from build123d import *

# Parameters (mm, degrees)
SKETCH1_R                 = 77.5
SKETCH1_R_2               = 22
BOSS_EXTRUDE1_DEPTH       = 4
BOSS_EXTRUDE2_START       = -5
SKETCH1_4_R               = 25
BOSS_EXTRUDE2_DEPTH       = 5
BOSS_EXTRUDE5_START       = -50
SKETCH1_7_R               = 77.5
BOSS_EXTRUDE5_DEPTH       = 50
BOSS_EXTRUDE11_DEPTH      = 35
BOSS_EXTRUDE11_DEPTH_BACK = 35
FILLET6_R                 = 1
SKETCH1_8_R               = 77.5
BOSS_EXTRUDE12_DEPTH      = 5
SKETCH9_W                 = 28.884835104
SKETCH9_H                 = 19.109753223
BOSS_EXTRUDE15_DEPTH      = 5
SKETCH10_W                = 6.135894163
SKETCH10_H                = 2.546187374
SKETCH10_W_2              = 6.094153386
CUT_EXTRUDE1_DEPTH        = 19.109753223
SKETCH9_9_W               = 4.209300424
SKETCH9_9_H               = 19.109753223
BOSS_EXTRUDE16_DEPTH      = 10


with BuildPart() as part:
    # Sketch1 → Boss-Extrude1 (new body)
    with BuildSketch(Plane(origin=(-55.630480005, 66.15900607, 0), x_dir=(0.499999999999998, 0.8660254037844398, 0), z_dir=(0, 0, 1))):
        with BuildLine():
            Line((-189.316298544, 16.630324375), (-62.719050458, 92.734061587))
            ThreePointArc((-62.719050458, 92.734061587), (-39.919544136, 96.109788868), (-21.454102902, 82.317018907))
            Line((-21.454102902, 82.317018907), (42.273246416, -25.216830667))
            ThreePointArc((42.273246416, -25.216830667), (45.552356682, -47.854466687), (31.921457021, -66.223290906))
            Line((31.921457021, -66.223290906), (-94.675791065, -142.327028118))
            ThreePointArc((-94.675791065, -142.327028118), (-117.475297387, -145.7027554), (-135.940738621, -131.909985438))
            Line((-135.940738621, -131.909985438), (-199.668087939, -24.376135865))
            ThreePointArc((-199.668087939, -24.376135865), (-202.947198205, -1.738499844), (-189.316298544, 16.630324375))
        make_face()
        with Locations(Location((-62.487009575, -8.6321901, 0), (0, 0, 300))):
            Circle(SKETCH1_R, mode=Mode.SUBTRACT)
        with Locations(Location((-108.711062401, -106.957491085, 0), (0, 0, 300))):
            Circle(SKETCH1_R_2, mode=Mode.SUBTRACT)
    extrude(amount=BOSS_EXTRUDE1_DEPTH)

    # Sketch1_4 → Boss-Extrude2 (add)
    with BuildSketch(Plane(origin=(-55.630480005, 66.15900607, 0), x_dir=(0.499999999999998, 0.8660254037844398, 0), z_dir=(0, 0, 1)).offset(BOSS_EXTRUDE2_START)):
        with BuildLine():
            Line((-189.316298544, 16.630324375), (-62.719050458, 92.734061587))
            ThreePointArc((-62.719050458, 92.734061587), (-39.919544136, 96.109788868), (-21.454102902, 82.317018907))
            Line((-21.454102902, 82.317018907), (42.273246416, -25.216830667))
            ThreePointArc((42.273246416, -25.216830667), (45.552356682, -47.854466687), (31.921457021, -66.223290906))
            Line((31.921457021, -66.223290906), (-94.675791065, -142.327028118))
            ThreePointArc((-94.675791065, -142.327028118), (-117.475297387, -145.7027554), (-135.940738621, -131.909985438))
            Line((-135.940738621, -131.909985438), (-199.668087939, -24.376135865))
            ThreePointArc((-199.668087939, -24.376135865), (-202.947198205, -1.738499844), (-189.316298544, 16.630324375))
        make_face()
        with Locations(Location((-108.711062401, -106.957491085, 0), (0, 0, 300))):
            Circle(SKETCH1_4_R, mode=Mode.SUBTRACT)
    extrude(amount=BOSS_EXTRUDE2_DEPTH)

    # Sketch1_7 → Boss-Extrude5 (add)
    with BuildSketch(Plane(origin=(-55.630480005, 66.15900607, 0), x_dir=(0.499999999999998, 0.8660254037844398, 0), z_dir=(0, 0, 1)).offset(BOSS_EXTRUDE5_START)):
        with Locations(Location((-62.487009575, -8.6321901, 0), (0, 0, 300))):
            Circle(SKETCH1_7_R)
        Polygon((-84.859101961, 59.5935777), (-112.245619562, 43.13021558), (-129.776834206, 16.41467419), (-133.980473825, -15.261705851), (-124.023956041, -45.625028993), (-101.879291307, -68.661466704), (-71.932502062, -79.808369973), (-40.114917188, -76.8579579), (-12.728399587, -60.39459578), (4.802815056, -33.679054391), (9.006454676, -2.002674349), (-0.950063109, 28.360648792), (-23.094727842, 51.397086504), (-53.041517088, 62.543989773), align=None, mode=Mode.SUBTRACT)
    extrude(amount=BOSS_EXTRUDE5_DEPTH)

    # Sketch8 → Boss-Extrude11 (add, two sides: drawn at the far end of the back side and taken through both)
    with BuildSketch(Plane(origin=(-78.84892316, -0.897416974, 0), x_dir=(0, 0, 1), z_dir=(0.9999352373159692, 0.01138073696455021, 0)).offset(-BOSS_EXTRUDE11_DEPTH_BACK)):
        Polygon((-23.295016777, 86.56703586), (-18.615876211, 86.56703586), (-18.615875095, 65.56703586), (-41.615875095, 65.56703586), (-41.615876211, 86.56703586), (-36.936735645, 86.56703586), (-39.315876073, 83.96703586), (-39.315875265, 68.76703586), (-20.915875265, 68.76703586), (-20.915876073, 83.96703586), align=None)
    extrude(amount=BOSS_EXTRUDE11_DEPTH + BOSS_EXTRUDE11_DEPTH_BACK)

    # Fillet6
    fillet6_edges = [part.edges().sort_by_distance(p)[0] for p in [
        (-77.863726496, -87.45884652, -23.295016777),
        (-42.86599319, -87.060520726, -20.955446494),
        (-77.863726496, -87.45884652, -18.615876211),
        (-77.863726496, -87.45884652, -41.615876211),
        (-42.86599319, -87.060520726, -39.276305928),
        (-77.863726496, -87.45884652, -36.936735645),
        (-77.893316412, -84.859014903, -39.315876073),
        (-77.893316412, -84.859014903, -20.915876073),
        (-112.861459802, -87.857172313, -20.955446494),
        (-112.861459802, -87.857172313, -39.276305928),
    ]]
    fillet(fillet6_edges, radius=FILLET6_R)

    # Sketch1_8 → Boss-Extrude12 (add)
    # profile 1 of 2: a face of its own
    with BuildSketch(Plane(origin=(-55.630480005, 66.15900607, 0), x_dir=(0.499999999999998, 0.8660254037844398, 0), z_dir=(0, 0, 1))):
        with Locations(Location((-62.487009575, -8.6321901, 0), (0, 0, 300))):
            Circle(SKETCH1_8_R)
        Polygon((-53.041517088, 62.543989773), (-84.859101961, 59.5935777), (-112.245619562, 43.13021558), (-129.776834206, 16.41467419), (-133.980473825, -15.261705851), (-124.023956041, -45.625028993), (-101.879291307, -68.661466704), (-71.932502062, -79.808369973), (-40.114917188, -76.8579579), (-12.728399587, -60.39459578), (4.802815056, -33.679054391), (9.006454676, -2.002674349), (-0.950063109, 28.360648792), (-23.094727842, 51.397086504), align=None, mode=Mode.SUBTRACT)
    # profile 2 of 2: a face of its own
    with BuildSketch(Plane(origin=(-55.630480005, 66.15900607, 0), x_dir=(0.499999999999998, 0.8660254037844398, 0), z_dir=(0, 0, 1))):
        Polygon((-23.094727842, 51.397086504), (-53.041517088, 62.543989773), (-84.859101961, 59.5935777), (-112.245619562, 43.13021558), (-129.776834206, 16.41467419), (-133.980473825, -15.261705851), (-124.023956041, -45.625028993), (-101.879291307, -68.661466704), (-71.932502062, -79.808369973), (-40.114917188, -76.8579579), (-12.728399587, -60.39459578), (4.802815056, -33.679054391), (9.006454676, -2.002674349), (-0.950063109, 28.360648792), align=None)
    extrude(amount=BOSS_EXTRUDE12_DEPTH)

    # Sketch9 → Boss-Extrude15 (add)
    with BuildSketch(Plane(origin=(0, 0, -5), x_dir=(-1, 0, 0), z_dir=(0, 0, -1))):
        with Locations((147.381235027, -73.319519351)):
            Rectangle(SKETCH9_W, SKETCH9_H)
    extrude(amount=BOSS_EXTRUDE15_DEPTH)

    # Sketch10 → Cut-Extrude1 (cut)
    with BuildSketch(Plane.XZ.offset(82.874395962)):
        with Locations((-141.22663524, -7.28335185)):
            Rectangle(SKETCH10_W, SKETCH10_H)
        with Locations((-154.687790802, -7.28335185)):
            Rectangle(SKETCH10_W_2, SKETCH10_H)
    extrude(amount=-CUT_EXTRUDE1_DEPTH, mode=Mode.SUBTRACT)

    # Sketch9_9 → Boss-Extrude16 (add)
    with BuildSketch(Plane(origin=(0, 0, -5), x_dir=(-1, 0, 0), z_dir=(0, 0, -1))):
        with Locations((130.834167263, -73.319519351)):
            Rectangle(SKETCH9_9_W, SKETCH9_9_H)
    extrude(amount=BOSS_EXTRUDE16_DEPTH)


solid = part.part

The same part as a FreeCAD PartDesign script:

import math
import FreeCAD as App
import Part
import Sketcher


def edges_at(feature, points):
    """Names of the edges that pass closest to the given points."""
    edges = feature.Shape.Edges
    near = lambda p: min(range(len(edges)), key=lambda i: edges[i].distToShape(Part.Vertex(*p))[0])
    return sorted({f"Edge{near(p) + 1}" for p in points})


def add_polygon(sketch, points):
    """Adds a closed chain of lines whose ends are joined by coincident constraints."""
    first, n = sketch.GeometryCount, len(points)
    for a, b in zip(points, points[1:] + points[:1]):
        sketch.addGeometry(Part.LineSegment(App.Vector(*a, 0), App.Vector(*b, 0)), False)
    for i in range(n):
        sketch.addConstraint(Sketcher.Constraint("Coincident", first + i, 2, first + (i + 1) % n, 1))

doc = App.newDocument("Part")
body = doc.addObject("PartDesign::Body", "Body")

# Sketch on XY plane
sketch1 = body.newObject("Sketcher::SketchObject", "Sketch")
sketch1.AttachmentSupport = (doc.getObject("XY_Plane"), [""])
sketch1.MapMode = "FlatFace"
sketch1.addGeometry([
    Part.LineSegment(App.Vector(-167, 58, 0), App.Vector(-165, -89, 0)),  # 0
    Part.ArcOfCircle(Part.Circle(App.Vector(-135, -89, 0), App.Vector(0, 0, 1), 30), math.radians(-179), math.radians(-89)),  # 1
    Part.LineSegment(App.Vector(-134, -119, 0), App.Vector(-9, -118, 0)),  # 2
    Part.ArcOfCircle(Part.Circle(App.Vector(-10, -88, 0), App.Vector(0, 0, 1), 30), math.radians(-89), math.radians(1)),  # 3
    Part.LineSegment(App.Vector(20, -87, 0), App.Vector(18, 61, 0)),  # 4
    Part.ArcOfCircle(Part.Circle(App.Vector(-12, 60, 0), App.Vector(0, 0, 1), 30), math.radians(1), math.radians(91)),  # 5
    Part.LineSegment(App.Vector(-13, 90, 0), App.Vector(-138, 89, 0)),  # 6
    Part.ArcOfCircle(Part.Circle(App.Vector(-137, 59, 0), App.Vector(0, 0, 1), 30), math.radians(91), math.radians(181)),  # 7
    Part.Circle(App.Vector(-17, -81, 0), App.Vector(0, 0, 1), 22),  # 8
    Part.Circle(App.Vector(-79, 8, 0), App.Vector(0, 0, 1), 78),  # 9
], False)
sketch1.addConstraint([
    Sketcher.Constraint("Tangent", 0, 2, 1, 1),
    Sketcher.Constraint("Tangent", 1, 2, 2, 1),
    Sketcher.Constraint("Tangent", 2, 2, 3, 1),
    Sketcher.Constraint("Tangent", 3, 2, 4, 1),
    Sketcher.Constraint("Tangent", 4, 2, 5, 1),
    Sketcher.Constraint("Tangent", 5, 2, 6, 1),
    Sketcher.Constraint("Tangent", 6, 2, 7, 1),
    Sketcher.Constraint("Tangent", 7, 2, 0, 1),
    Sketcher.Constraint("Equal", 1, 3),
    Sketcher.Constraint("Equal", 3, 5),
    Sketcher.Constraint("Equal", 5, 7),
    Sketcher.Constraint("Parallel", 0, 4),
    Sketcher.Constraint("Parallel", 2, 6),
    Sketcher.Constraint("Diameter", 8, 44.0),
    Sketcher.Constraint("Diameter", 9, 155.0),
    Sketcher.Constraint("Radius", 1, 30.0),
    Sketcher.Constraint("DistanceY", 1, 2, -1, 1, 118.946698),
    Sketcher.Constraint("DistanceX", -1, 1, 4, 2, 17.681301),
    Sketcher.Constraint("DistanceY", 3, 3, 5, 3, 147.688302),
    Sketcher.Constraint("DistanceX", 1, 2, 3, 3, 124.649298),
    Sketcher.Constraint("DistanceY", -1, 1, 5, 3, 60.162239),
    Sketcher.Constraint("DistanceY", 8, 3, -1, 1, 81.466281),
    Sketcher.Constraint("DistanceX", 9, 3, -1, 1, 79.398289),
    Sketcher.Constraint("DistanceX", 1, 2, -1, 1, 134.354171),
    Sketcher.Constraint("DistanceX", 8, 3, 5, 3, 5.044088),
    Sketcher.Constraint("DistanceY", 0, 2, 9, 3, 97.206129),
])
pad1 = body.newObject("PartDesign::Pad", "Pad")
pad1.Profile = sketch1
pad1.Length = 4

# Sketch on XY plane
sketch2 = body.newObject("Sketcher::SketchObject", "Sketch001")
sketch2.AttachmentSupport = (doc.getObject("XY_Plane"), [""])
sketch2.MapMode = "FlatFace"
sketch2.AttachmentOffset = App.Placement(App.Vector(0, 0, -5), App.Rotation())
sketch2.addGeometry([
    Part.LineSegment(App.Vector(-167, 58, 0), App.Vector(-165, -89, 0)),  # 0
    Part.ArcOfCircle(Part.Circle(App.Vector(-135, -89, 0), App.Vector(0, 0, 1), 30), math.radians(-179), math.radians(-89)),  # 1
    Part.LineSegment(App.Vector(-134, -119, 0), App.Vector(-9, -118, 0)),  # 2
    Part.ArcOfCircle(Part.Circle(App.Vector(-10, -88, 0), App.Vector(0, 0, 1), 30), math.radians(-89), math.radians(1)),  # 3
    Part.LineSegment(App.Vector(20, -87, 0), App.Vector(18, 61, 0)),  # 4
    Part.ArcOfCircle(Part.Circle(App.Vector(-12, 60, 0), App.Vector(0, 0, 1), 30), math.radians(1), math.radians(91)),  # 5
    Part.LineSegment(App.Vector(-13, 90, 0), App.Vector(-138, 89, 0)),  # 6
    Part.ArcOfCircle(Part.Circle(App.Vector(-137, 59, 0), App.Vector(0, 0, 1), 30), math.radians(91), math.radians(181)),  # 7
    Part.Circle(App.Vector(-17, -81, 0), App.Vector(0, 0, 1), 25),  # 8
], False)
sketch2.addConstraint([
    Sketcher.Constraint("Tangent", 0, 2, 1, 1),
    Sketcher.Constraint("Tangent", 1, 2, 2, 1),
    Sketcher.Constraint("Tangent", 2, 2, 3, 1),
    Sketcher.Constraint("Tangent", 3, 2, 4, 1),
    Sketcher.Constraint("Tangent", 4, 2, 5, 1),
    Sketcher.Constraint("Tangent", 5, 2, 6, 1),
    Sketcher.Constraint("Tangent", 6, 2, 7, 1),
    Sketcher.Constraint("Tangent", 7, 2, 0, 1),
    Sketcher.Constraint("Equal", 1, 3),
    Sketcher.Constraint("Equal", 3, 5),
    Sketcher.Constraint("Equal", 5, 7),
    Sketcher.Constraint("Parallel", 0, 4),
    Sketcher.Constraint("Parallel", 2, 6),
    Sketcher.Constraint("Diameter", 8, 50.0),
    Sketcher.Constraint("Radius", 1, 30.0),
    Sketcher.Constraint("DistanceY", 1, 2, -1, 1, 118.946698),
    Sketcher.Constraint("DistanceX", -1, 1, 4, 2, 17.681301),
    Sketcher.Constraint("DistanceY", 3, 3, 5, 3, 147.688302),
    Sketcher.Constraint("DistanceX", 1, 2, 3, 3, 124.649298),
    Sketcher.Constraint("DistanceY", -1, 1, 5, 3, 60.162239),
    Sketcher.Constraint("DistanceY", 8, 3, -1, 1, 81.466281),
    Sketcher.Constraint("DistanceX", 1, 2, -1, 1, 134.354171),
    Sketcher.Constraint("DistanceX", 8, 3, 5, 3, 5.044088),
])
pad2 = body.newObject("PartDesign::Pad", "Pad001")
pad2.Profile = sketch2
pad2.Length = 5

# Sketch on XY plane
sketch3 = body.newObject("Sketcher::SketchObject", "Sketch002")
sketch3.AttachmentSupport = (doc.getObject("XY_Plane"), [""])
sketch3.MapMode = "FlatFace"
sketch3.AttachmentOffset = App.Placement(App.Vector(0, 0, -50), App.Rotation())
sketch3.addGeometry(Part.Circle(App.Vector(-79.398289, 7.727573, 0), App.Vector(0, 0, 1), 77.5), False)  # 0
add_polygon(sketch3, [(-149.105152, -9.483444), (-149.669583, 22.465657), (-136.315923, 51.4957), (-111.689027, 71.856928), (-80.666554, 79.516552), (-49.392886, 72.957487), (-24.062156, 53.478839), (-9.691426, 24.938591), (-9.126995, -7.01051), (-22.480655, -36.040553), (-47.107551, -56.401782), (-78.130024, -64.061405), (-109.403692, -57.502341), (-134.734422, -38.023692)])  # lines 1-14
sketch3.addConstraint([
    Sketcher.Constraint("Diameter", 0, 155.0),
    Sketcher.Constraint("DistanceY", -1, 1, 2, 2, 51.4957),
    Sketcher.Constraint("DistanceX", 4, 2, 6, 2, 56.604398),
    Sketcher.Constraint("DistanceX", 3, 2, 7, 2, 101.997601),
    Sketcher.Constraint("DistanceY", 8, 2, 7, 2, 31.949101),
    Sketcher.Constraint("DistanceX", 6, 2, 9, 2, 1.581501),
    Sketcher.Constraint("DistanceX", 11, 2, 7, 2, 68.438598),
    Sketcher.Constraint("DistanceX", 13, 2, 11, 2, 56.604398),
    Sketcher.Constraint("DistanceY", 14, 2, 1, 2, 31.949101),
    Sketcher.Constraint("DistanceX", 0, 3, -1, 1, 79.398289),
    Sketcher.Constraint("DistanceY", -1, 1, 3, 2, 71.856928),
    Sketcher.Constraint("DistanceY", -1, 1, 4, 2, 79.516552),
    Sketcher.Constraint("DistanceY", -1, 1, 6, 2, 53.478839),
    Sketcher.Constraint("DistanceY", -1, 1, 7, 2, 24.938591),
    Sketcher.Constraint("DistanceX", 10, 2, -1, 1, 47.107551),
    Sketcher.Constraint("DistanceY", 10, 2, -1, 1, 56.401782),
    Sketcher.Constraint("DistanceX", 12, 2, -1, 1, 109.403692),
    Sketcher.Constraint("DistanceY", 12, 2, -1, 1, 57.502341),
    Sketcher.Constraint("DistanceX", 13, 2, -1, 1, 134.734422),
    Sketcher.Constraint("DistanceX", 1, 2, 2, 2, 13.353661),
    Sketcher.Constraint("DistanceY", 1, 2, 3, 2, 49.391271),
    Sketcher.Constraint("DistanceX", 2, 2, 4, 2, 55.649369),
    Sketcher.Constraint("DistanceY", 0, 3, 4, 2, 71.788978),
    Sketcher.Constraint("DistanceX", 4, 2, 5, 2, 31.273668),
    Sketcher.Constraint("DistanceX", 3, 2, 5, 2, 62.296141),
    Sketcher.Constraint("DistanceY", 3, 2, 5, 2, 1.100559),
    Sketcher.Constraint("DistanceX", 7, 2, 8, 2, 0.564431),
    Sketcher.Constraint("DistanceY", 9, 2, 6, 2, 89.519392),
    Sketcher.Constraint("DistanceY", 11, 2, 9, 2, 28.020852),
    Sketcher.Constraint("DistanceY", 12, 2, 13, 2, 19.478649),
    Sketcher.Constraint("DistanceX", 1, 2, 14, 2, 0.564431),
])
pad3 = body.newObject("PartDesign::Pad", "Pad002")
pad3.Profile = sketch3
pad3.Length = 50

# Sketch on an angled plane
sketch4 = body.newObject("Sketcher::SketchObject", "Sketch003")
sketch4.Placement = App.Placement(App.Vector(-78.848923, -0.897417, 0), App.Rotation(App.Vector(0, 0, 1), App.Vector(0.011380737, -0.999935237, 0), App.Vector(0.999935237, 0.011380737, 0), "ZXY"))
add_polygon(sketch4, [(-18.6, 86.6), (-23.3, 86.6), (-20.9, 84), (-20.9, 68.8), (-39.3, 68.8), (-39.3, 84), (-36.9, 86.6), (-41.6, 86.6), (-41.6, 65.6), (-18.6, 65.6)])  # lines 0-9
sketch4.addConstraint([
    Sketcher.Constraint("Horizontal", 0),
    Sketcher.Constraint("Vertical", 2),
    Sketcher.Constraint("Horizontal", 3),
    Sketcher.Constraint("Vertical", 4),
    Sketcher.Constraint("Horizontal", 6),
    Sketcher.Constraint("Vertical", 7),
    Sketcher.Constraint("Horizontal", 8),
    Sketcher.Constraint("Vertical", 9),
    Sketcher.Constraint("Horizontal", 1, 2, 4, 2),
    Sketcher.Constraint("Horizontal", 0, 2, 5, 2),
    Sketcher.Constraint("Equal", 0, 6),
    Sketcher.Constraint("Equal", 1, 5),
    Sketcher.Constraint("DistanceX", 8, 1, 8, 2, 23.0),
    Sketcher.Constraint("DistanceY", 7, 2, 7, 1, 21.0),
    Sketcher.Constraint("DistanceX", 3, 2, 3, 1, 18.4),
    Sketcher.Constraint("DistanceY", 2, 2, 2, 1, 15.2),
    Sketcher.Constraint("DistanceY", 1, 2, 0, 2, 2.6),
    Sketcher.Constraint("DistanceX", 0, 2, 0, 1, 4.679141),
    Sketcher.Constraint("DistanceX", 0, 2, -1, 1, 23.295017),
    Sketcher.Constraint("DistanceY", -1, 1, 0, 2, 86.567036),
])
pad4 = body.newObject("PartDesign::Pad", "Pad003")
pad4.Profile = sketch4
pad4.Type = "TwoLengths"
pad4.Length = 35
pad4.Length2 = 35
doc.recompute()

fillet = body.newObject("PartDesign::Fillet", "Fillet")
fillet.Base = (pad4, edges_at(pad4, [
    (-77.864, -87.459, -23.295),
    (-42.866, -87.061, -20.955),
    (-77.864, -87.459, -18.616),
    (-77.864, -87.459, -41.616),
    (-42.866, -87.061, -39.276),
    (-77.864, -87.459, -36.937),
    (-77.893, -84.859, -39.316),
    (-77.893, -84.859, -20.916),
    (-112.861, -87.857, -20.955),
    (-112.861, -87.857, -39.276),
]))
fillet.Radius = 1

# Sketch on XY plane
sketch5 = body.newObject("Sketcher::SketchObject", "Sketch004")
sketch5.AttachmentSupport = (doc.getObject("XY_Plane"), [""])
sketch5.MapMode = "FlatFace"
sketch5.addGeometry(Part.Circle(App.Vector(-79, 8, 0), App.Vector(0, 0, 1), 78), False)
sketch5.addConstraint([
    Sketcher.Constraint("Diameter", 0, 155.0),
    Sketcher.Constraint("DistanceX", 0, 3, -1, 1, 79.398289),
    Sketcher.Constraint("DistanceY", -1, 1, 0, 3, 7.727573),
])
pad5 = body.newObject("PartDesign::Pad", "Pad004")
pad5.Profile = sketch5
pad5.Length = 5

# Sketch on XY plane
sketch6 = body.newObject("Sketcher::SketchObject", "Sketch005")
sketch6.AttachmentSupport = (doc.getObject("XY_Plane"), [""])
sketch6.MapMode = "FlatFace"
sketch6.AttachmentOffset = App.Placement(App.Vector(0, 0, -5), App.Rotation())
add_polygon(sketch6, [(-133, -64), (-133, -83), (-162, -83), (-162, -64)])  # lines 0-3
sketch6.addConstraint([
    Sketcher.Constraint("Vertical", 0),
    Sketcher.Constraint("Horizontal", 1),
    Sketcher.Constraint("Vertical", 2),
    Sketcher.Constraint("Horizontal", 3),
    Sketcher.Constraint("DistanceX", 1, 2, 1, 1, 28.884835),
    Sketcher.Constraint("DistanceY", 0, 2, 0, 1, 19.109753),
    Sketcher.Constraint("DistanceX", 0, 2, -1, 1, 132.938817),
    Sketcher.Constraint("DistanceY", 0, 2, -1, 1, 82.874396),
])
pad6 = body.newObject("PartDesign::Pad", "Pad005")
pad6.Profile = sketch6
pad6.Length = 5
pad6.Reversed = True

# Sketch on XZ plane
sketch7 = body.newObject("Sketcher::SketchObject", "Sketch006")
sketch7.AttachmentSupport = (doc.getObject("XZ_Plane"), [""])
sketch7.MapMode = "FlatFace"
sketch7.AttachmentOffset = App.Placement(App.Vector(0, 0, 82.874396), App.Rotation())
add_polygon(sketch7, [(-144.3, -6), (-144.3, -8.6), (-138.2, -8.6), (-138.2, -6)])  # lines 0-3
add_polygon(sketch7, [(-157.7, -6), (-157.7, -8.6), (-151.6, -8.6), (-151.6, -6)])  # lines 4-7
sketch7.addConstraint([
    Sketcher.Constraint("Vertical", 0),
    Sketcher.Constraint("Horizontal", 1),
    Sketcher.Constraint("Vertical", 2),
    Sketcher.Constraint("Horizontal", 3),
    Sketcher.Constraint("Vertical", 4),
    Sketcher.Constraint("Horizontal", 5),
    Sketcher.Constraint("Vertical", 6),
    Sketcher.Constraint("Horizontal", 7),
    Sketcher.Constraint("Horizontal", 1, 2, 4, 2),
    Sketcher.Constraint("Horizontal", 3, 2, 6, 2),
    Sketcher.Constraint("DistanceX", 1, 1, 1, 2, 6.135894),
    Sketcher.Constraint("DistanceX", 5, 1, 5, 2, 6.094153),
    Sketcher.Constraint("DistanceY", 0, 2, 0, 1, 2.546187),
    Sketcher.Constraint("DistanceX", 1, 2, -1, 1, 138.158688),
    Sketcher.Constraint("DistanceY", 2, 2, -1, 1, 6.010258),
    Sketcher.Constraint("DistanceX", 4, 2, 1, 2, 19.576179),
])
pocket1 = body.newObject("PartDesign::Pocket", "Pocket")
pocket1.Profile = sketch7
pocket1.Length = 19.109753

# Sketch on XY plane
sketch8 = body.newObject("Sketcher::SketchObject", "Sketch007")
sketch8.AttachmentSupport = (doc.getObject("XY_Plane"), [""])
sketch8.MapMode = "FlatFace"
sketch8.AttachmentOffset = App.Placement(App.Vector(0, 0, -5), App.Rotation())
add_polygon(sketch8, [(-128.7, -63.8), (-128.7, -82.9), (-132.9, -82.9), (-132.9, -63.8)])  # lines 0-3
sketch8.addConstraint([
    Sketcher.Constraint("Vertical", 0),
    Sketcher.Constraint("Horizontal", 1),
    Sketcher.Constraint("Vertical", 2),
    Sketcher.Constraint("Horizontal", 3),
    Sketcher.Constraint("DistanceX", 1, 2, 1, 1, 4.2093),
    Sketcher.Constraint("DistanceY", 0, 2, 0, 1, 19.109753),
    Sketcher.Constraint("DistanceX", 0, 2, -1, 1, 128.729517),
    Sketcher.Constraint("DistanceY", 0, 2, -1, 1, 82.874396),
])
pad7 = body.newObject("PartDesign::Pad", "Pad006")
pad7.Profile = sketch8
pad7.Length = 10
pad7.Reversed = True

doc.recompute()
